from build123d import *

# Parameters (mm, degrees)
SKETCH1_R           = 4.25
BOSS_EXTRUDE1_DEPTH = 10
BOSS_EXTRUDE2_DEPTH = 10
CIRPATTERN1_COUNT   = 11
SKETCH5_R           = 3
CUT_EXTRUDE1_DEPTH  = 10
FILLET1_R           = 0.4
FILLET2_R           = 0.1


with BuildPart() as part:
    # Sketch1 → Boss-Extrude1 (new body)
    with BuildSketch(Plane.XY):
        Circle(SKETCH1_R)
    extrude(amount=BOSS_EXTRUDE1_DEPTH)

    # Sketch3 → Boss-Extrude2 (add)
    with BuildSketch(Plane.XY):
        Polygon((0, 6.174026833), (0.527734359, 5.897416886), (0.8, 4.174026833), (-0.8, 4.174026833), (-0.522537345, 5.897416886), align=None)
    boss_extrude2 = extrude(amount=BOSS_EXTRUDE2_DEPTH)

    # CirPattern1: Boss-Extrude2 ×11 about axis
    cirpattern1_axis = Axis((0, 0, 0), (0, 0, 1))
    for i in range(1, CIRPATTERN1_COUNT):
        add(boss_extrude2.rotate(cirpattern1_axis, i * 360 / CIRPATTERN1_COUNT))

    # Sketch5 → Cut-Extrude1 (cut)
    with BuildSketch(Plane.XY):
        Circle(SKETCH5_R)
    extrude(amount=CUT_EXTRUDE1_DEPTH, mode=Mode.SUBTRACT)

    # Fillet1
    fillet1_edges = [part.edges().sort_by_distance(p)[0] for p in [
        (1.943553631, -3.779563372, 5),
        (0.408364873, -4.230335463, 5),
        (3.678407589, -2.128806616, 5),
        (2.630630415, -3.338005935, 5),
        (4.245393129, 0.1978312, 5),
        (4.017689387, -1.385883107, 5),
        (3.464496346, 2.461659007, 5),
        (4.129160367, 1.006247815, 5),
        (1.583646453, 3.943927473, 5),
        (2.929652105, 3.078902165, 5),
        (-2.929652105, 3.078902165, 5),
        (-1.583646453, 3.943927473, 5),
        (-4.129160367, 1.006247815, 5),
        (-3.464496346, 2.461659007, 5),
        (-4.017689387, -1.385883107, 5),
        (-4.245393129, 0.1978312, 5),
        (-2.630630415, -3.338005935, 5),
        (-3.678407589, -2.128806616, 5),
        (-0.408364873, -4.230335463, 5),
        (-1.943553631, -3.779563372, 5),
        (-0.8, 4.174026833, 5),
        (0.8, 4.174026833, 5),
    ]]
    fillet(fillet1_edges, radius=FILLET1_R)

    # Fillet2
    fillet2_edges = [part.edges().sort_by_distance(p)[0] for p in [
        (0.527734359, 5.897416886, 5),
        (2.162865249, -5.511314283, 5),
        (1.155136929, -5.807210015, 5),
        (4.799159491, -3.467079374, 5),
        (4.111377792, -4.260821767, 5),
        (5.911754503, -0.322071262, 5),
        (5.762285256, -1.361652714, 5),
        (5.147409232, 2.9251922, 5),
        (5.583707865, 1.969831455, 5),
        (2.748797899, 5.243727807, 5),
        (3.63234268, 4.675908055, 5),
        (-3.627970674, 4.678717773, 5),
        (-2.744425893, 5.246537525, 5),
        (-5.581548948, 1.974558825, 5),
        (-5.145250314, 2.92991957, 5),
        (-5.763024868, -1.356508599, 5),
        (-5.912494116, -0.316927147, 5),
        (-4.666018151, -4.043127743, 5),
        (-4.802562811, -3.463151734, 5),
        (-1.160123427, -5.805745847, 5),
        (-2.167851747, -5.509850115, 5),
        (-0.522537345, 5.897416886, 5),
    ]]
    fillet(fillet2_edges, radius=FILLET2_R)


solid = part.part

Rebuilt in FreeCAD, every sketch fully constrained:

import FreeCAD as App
import Part
import Sketcher

V = App.Vector
Q = App.Units.Quantity


def edges_at(feature, points):
    """Names of the edges that pass closest to the given points."""
    edges = feature.Shape.Edges
    near = lambda p: min(range(len(edges)), key=lambda i: edges[i].distToShape(Part.Vertex(*p))[0])
    return sorted({f"Edge{near(p) + 1}" for p in points})

doc = App.newDocument("Part")
body = doc.addObject("PartDesign::Body", "Body")

sketch1 = doc.addObject("Sketcher::SketchObject", "Sketch")
body.addObject(sketch1)
sketch1.AttachmentSupport = (doc.XY_Plane, [""])
sketch1.MapMode = "FlatFace"
sketch1.addGeometry(Part.Circle(V(0, 0, 0), V(0, 0, 1), 4.25), False)
sketch1.addConstraint([
    Sketcher.Constraint("Coincident", 0, 3, -1, 1),
    Sketcher.Constraint("Diameter", 0, Q("8.5 mm")),
])
pad1 = doc.addObject("PartDesign::Pad", "Pad")
body.addObject(pad1)
pad1.Profile = sketch1
pad1.Length = 10

sketch2 = doc.addObject("Sketcher::SketchObject", "Sketch001")
body.addObject(sketch2)
sketch2.AttachmentSupport = (doc.XY_Plane, [""])
sketch2.MapMode = "FlatFace"
sketch2.addGeometry([
    Part.LineSegment(V(0.527734, 5.897417, 0), V(0, 6.174027, 0)),
    Part.LineSegment(V(0, 6.174027, 0), V(-0.522537, 5.897417, 0)),
    Part.LineSegment(V(-0.522537, 5.897417, 0), V(-0.8, 4.174027, 0)),
    Part.LineSegment(V(-0.8, 4.174027, 0), V(0.8, 4.174027, 0)),
    Part.LineSegment(V(0.8, 4.174027, 0), V(0.527734, 5.897417, 0)),
], False)
sketch2.addConstraint([
    Sketcher.Constraint("Coincident", 0, 2, 1, 1),
    Sketcher.Constraint("Coincident", 1, 2, 2, 1),
    Sketcher.Constraint("Coincident", 2, 2, 3, 1),
    Sketcher.Constraint("Coincident", 3, 2, 4, 1),
    Sketcher.Constraint("Coincident", 4, 2, 0, 1),
    Sketcher.Constraint("Horizontal", 3),
    Sketcher.Constraint("PointOnObject", 0, 2, -2),
    Sketcher.Constraint("Horizontal", 1, 2, 4, 2),
    Sketcher.Constraint("DistanceX", 3, 1, 3, 2, Q("1.6 mm")),
    Sketcher.Constraint("DistanceY", 2, 2, 0, 2, Q("2 mm")),
    Sketcher.Constraint("DistanceX", 2, 2, -1, 1, Q("0.8 mm")),
    Sketcher.Constraint("DistanceY", 1, 2, 0, 2, Q("0.27661 mm")),
    Sketcher.Constraint("DistanceX", 1, 2, 4, 2, Q("1.050272 mm")),
    Sketcher.Constraint("Distance", 0, Q("0.595833 mm")),
    Sketcher.Constraint("DistanceY", -1, 1, 0, 2, Q("6.174027 mm")),
])
pad2 = doc.addObject("PartDesign::Pad", "Pad001")
body.addObject(pad2)
pad2.Profile = sketch2
pad2.Length = 10
doc.recompute()

polarpattern = doc.addObject("PartDesign::PolarPattern", "PolarPattern")
body.addObject(polarpattern)
polarpattern.Originals = [pad2]
polarpattern.Axis = (doc.Z_Axis, [""])
polarpattern.Angle = 360
polarpattern.Occurrences = 11
body.Tip = polarpattern

sketch3 = doc.addObject("Sketcher::SketchObject", "Sketch002")
body.addObject(sketch3)
sketch3.AttachmentSupport = (doc.XY_Plane, [""])
sketch3.MapMode = "FlatFace"
sketch3.addGeometry(Part.Circle(V(0, 0, 0), V(0, 0, 1), 3), False)
sketch3.addConstraint([
    Sketcher.Constraint("Coincident", 0, 3, -1, 1),
    Sketcher.Constraint("Diameter", 0, Q("6 mm")),
])
pocket1 = doc.addObject("PartDesign::Pocket", "Pocket")
body.addObject(pocket1)
pocket1.Profile = sketch3
pocket1.Length = 10
pocket1.Reversed = True
doc.recompute()

fillet = doc.addObject("PartDesign::Fillet", "Fillet")
body.addObject(fillet)
fillet.Base = (pocket1, edges_at(pocket1, [
    (1.944, -3.78, 5),
    (0.408, -4.23, 5),
    (3.678, -2.129, 5),
    (2.631, -3.338, 5),
    (4.245, 0.198, 5),
    (4.018, -1.386, 5),
    (3.464, 2.462, 5),
    (4.129, 1.006, 5),
    (1.584, 3.944, 5),
    (2.93, 3.079, 5),
    (-2.93, 3.079, 5),
    (-1.584, 3.944, 5),
    (-4.129, 1.006, 5),
    (-3.464, 2.462, 5),
    (-4.018, -1.386, 5),
    (-4.245, 0.198, 5),
    (-2.631, -3.338, 5),
    (-3.678, -2.129, 5),
    (-0.408, -4.23, 5),
    (-1.944, -3.78, 5),
    (-0.8, 4.174, 5),
    (0.8, 4.174, 5),
]))
fillet.Radius = 0.4
doc.recompute()

fillet2 = doc.addObject("PartDesign::Fillet", "Fillet001")
body.addObject(fillet2)
fillet2.Base = (fillet, edges_at(fillet, [
    (0.528, 5.897, 5),
    (2.163, -5.511, 5),
    (1.155, -5.807, 5),
    (4.799, -3.467, 5),
    (4.111, -4.261, 5),
    (5.912, -0.322, 5),
    (5.762, -1.362, 5),
    (5.147, 2.925, 5),
    (5.584, 1.97, 5),
    (2.749, 5.244, 5),
    (3.632, 4.676, 5),
    (-3.628, 4.679, 5),
    (-2.744, 5.247, 5),
    (-5.582, 1.975, 5),
    (-5.145, 2.93, 5),
    (-5.763, -1.357, 5),
    (-5.912, -0.317, 5),
    (-4.666, -4.043, 5),
    (-4.803, -3.463, 5),
    (-1.16, -5.806, 5),
    (-2.168, -5.51, 5),
    (-0.523, 5.897, 5),
]))
fillet2.Radius = 0.1

doc.recompute()
